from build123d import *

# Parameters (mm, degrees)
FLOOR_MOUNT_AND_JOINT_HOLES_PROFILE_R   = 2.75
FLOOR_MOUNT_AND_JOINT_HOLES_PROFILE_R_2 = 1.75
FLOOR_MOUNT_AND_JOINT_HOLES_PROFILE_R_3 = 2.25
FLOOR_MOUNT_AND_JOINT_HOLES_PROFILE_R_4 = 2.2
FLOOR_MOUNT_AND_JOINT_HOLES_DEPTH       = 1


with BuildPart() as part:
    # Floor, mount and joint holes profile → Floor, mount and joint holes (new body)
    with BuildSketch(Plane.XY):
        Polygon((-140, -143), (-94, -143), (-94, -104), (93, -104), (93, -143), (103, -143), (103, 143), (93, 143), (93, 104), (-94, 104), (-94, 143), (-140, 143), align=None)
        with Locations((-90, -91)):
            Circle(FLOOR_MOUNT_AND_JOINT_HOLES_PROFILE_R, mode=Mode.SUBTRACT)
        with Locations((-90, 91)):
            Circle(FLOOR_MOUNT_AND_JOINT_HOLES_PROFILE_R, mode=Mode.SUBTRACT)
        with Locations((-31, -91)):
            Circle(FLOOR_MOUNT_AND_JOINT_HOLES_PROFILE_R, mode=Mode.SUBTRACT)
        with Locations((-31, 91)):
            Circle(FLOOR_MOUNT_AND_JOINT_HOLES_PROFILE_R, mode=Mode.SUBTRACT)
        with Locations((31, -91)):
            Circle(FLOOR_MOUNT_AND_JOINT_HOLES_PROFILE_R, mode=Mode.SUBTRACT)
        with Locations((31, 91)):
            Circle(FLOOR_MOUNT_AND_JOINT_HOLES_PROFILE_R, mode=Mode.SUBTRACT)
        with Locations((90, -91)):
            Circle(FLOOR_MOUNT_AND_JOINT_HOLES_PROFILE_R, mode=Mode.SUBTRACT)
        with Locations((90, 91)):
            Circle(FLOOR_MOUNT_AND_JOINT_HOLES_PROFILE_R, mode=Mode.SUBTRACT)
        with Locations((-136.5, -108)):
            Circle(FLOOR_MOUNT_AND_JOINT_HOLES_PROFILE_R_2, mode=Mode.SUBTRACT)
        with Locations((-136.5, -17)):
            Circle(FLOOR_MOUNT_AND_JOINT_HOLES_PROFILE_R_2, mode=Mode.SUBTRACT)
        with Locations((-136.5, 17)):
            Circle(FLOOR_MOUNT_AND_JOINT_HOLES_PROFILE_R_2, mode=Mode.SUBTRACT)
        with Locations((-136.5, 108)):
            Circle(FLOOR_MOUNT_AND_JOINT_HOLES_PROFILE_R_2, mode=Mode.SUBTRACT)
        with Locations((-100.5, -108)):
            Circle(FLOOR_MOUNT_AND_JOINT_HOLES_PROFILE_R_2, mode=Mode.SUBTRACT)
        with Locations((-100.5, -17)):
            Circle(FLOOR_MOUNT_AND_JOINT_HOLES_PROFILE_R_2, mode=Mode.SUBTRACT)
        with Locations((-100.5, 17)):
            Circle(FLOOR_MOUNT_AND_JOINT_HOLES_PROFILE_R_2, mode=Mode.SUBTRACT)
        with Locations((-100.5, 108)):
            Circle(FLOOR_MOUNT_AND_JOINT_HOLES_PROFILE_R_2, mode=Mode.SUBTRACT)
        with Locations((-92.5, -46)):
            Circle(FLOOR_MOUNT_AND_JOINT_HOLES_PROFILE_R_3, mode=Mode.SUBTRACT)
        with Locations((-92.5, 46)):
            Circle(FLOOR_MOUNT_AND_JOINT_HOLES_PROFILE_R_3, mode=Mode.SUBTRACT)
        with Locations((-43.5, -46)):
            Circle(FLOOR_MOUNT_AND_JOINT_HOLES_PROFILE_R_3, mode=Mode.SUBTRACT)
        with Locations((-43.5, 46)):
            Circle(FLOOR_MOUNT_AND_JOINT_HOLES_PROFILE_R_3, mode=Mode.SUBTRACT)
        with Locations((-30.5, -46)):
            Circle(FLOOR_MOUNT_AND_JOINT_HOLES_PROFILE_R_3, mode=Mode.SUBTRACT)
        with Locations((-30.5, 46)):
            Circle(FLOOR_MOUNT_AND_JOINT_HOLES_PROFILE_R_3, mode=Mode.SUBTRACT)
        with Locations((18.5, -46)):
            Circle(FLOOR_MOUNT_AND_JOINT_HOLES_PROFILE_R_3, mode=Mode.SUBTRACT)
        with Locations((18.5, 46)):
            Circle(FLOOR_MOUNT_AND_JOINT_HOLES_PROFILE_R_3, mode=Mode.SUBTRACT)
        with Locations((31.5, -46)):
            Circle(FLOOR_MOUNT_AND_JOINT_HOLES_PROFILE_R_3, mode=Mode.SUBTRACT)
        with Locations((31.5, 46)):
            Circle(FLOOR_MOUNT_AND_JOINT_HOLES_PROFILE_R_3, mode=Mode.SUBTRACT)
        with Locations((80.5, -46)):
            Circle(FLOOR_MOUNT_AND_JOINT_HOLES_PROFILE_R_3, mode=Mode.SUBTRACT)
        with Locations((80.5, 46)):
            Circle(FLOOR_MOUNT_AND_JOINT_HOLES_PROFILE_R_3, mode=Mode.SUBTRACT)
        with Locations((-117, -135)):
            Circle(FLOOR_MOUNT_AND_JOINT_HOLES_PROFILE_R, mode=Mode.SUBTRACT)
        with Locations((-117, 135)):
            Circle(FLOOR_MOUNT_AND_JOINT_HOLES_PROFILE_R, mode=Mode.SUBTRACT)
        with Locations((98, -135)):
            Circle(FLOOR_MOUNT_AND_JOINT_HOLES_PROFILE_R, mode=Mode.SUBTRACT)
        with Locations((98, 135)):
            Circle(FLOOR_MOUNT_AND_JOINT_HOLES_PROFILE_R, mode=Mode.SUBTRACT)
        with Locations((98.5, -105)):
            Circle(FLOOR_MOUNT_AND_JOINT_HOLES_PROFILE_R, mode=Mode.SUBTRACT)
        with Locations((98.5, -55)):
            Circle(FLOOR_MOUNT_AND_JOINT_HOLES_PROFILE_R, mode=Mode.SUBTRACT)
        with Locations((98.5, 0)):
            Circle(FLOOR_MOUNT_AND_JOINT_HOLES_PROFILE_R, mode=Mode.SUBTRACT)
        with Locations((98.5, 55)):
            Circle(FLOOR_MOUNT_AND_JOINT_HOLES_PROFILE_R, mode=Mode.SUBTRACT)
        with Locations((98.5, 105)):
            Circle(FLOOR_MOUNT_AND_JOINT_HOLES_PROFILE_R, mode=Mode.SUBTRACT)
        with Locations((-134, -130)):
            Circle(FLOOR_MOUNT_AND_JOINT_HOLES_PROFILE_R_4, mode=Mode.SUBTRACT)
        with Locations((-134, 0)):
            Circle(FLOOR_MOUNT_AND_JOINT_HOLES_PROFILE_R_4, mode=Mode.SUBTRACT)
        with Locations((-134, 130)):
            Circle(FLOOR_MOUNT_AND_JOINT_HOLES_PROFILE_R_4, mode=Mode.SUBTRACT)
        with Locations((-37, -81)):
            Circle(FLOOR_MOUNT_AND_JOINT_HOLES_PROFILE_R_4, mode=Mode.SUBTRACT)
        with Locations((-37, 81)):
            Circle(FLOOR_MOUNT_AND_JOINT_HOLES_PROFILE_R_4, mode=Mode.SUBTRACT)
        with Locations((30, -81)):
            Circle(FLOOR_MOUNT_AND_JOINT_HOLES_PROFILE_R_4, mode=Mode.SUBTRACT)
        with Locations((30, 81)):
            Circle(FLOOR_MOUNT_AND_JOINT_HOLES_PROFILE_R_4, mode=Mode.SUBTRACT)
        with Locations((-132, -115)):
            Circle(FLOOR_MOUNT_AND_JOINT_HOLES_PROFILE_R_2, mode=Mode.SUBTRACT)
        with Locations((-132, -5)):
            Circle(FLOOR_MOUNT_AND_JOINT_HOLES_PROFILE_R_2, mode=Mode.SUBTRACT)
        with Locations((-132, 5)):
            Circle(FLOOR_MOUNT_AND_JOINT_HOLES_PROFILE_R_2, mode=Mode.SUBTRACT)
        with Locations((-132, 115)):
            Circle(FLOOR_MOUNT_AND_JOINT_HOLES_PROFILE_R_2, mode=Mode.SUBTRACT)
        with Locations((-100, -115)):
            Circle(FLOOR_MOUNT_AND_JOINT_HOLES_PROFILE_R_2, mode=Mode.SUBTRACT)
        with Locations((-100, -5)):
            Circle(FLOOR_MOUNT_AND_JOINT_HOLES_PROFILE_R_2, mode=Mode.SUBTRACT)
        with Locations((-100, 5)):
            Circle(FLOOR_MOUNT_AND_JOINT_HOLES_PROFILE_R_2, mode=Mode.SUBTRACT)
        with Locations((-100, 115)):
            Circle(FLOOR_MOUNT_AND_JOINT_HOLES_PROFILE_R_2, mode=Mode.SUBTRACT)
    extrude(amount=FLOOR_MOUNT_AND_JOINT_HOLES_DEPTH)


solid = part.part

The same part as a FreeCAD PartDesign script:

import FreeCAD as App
import Part
import Sketcher
from FreeCAD import Vector
Q = App.Units.Quantity

doc = App.newDocument("Part")
body = doc.addObject("PartDesign::Body", "Body")

sketch1 = body.newObject("Sketcher::SketchObject", "Sketch")
sketch1.AttachmentSupport = (doc.getObject("XY_Plane"), [""])
sketch1.MapMode = "FlatFace"
sketch1.addGeometry(Part.LineSegment(Vector(-140, -143, 0), Vector(-94, -143, 0)), False)
sketch1.addGeometry(Part.LineSegment(Vector(-94, -143, 0), Vector(-94, -104, 0)), False)
sketch1.addGeometry(Part.LineSegment(Vector(-94, -104, 0), Vector(93, -104, 0)), False)
sketch1.addGeometry(Part.LineSegment(Vector(93, -104, 0), Vector(93, -143, 0)), False)
sketch1.addGeometry(Part.LineSegment(Vector(93, -143, 0), Vector(103, -143, 0)), False)
sketch1.addGeometry(Part.LineSegment(Vector(103, -143, 0), Vector(103, 143, 0)), False)
sketch1.addGeometry(Part.LineSegment(Vector(103, 143, 0), Vector(93, 143, 0)), False)
sketch1.addGeometry(Part.LineSegment(Vector(93, 143, 0), Vector(93, 104, 0)), False)
sketch1.addGeometry(Part.LineSegment(Vector(93, 104, 0), Vector(-94, 104, 0)), False)
sketch1.addGeometry(Part.LineSegment(Vector(-94, 104, 0), Vector(-94, 143, 0)), False)
sketch1.addGeometry(Part.LineSegment(Vector(-94, 143, 0), Vector(-140, 143, 0)), False)
sketch1.addGeometry(Part.LineSegment(Vector(-140, 143, 0), Vector(-140, -143, 0)), False)
sketch1.addGeometry(Part.Circle(Vector(-134, -130, 0), Vector(0, 0, 1), 2.2), False)
sketch1.addGeometry(Part.Circle(Vector(-117, -135, 0), Vector(0, 0, 1), 2.75), False)
sketch1.addGeometry(Part.Circle(Vector(-132, -115, 0), Vector(0, 0, 1), 1.75), False)
sketch1.addGeometry(Part.Circle(Vector(-136.5, -108, 0), Vector(0, 0, 1), 1.75), False)
sketch1.addGeometry(Part.Circle(Vector(-100, -115, 0), Vector(0, 0, 1), 1.75), False)
sketch1.addGeometry(Part.Circle(Vector(-100.5, -108, 0), Vector(0, 0, 1), 1.75), False)
sketch1.addGeometry(Part.Circle(Vector(-90, -91, 0), Vector(0, 0, 1), 2.75), False)
sketch1.addGeometry(Part.Circle(Vector(-31, -91, 0), Vector(0, 0, 1), 2.75), False)
sketch1.addGeometry(Part.Circle(Vector(-37, -81, 0), Vector(0, 0, 1), 2.2), False)
sketch1.addGeometry(Part.Circle(Vector(-92.5, -46, 0), Vector(0, 0, 1), 2.25), False)
sketch1.addGeometry(Part.Circle(Vector(-136.5, -17, 0), Vector(0, 0, 1), 1.75), False)
sketch1.addGeometry(Part.Circle(Vector(-132, -5, 0), Vector(0, 0, 1), 1.75), False)
sketch1.addGeometry(Part.Circle(Vector(-100.5, -17, 0), Vector(0, 0, 1), 1.75), False)
sketch1.addGeometry(Part.Circle(Vector(-100, -5, 0), Vector(0, 0, 1), 1.75), False)
sketch1.addGeometry(Part.Circle(Vector(-43.5, -46, 0), Vector(0, 0, 1), 2.25), False)
sketch1.addGeometry(Part.Circle(Vector(-30.5, -46, 0), Vector(0, 0, 1), 2.25), False)
sketch1.addGeometry(Part.Circle(Vector(31, -91, 0), Vector(0, 0, 1), 2.75), False)
sketch1.addGeometry(Part.Circle(Vector(30, -81, 0), Vector(0, 0, 1), 2.2), False)
sketch1.addGeometry(Part.Circle(Vector(98, -135, 0), Vector(0, 0, 1), 2.75), False)
sketch1.addGeometry(Part.Circle(Vector(98.5, -105, 0), Vector(0, 0, 1), 2.75), False)
sketch1.addGeometry(Part.Circle(Vector(90, -91, 0), Vector(0, 0, 1), 2.75), False)
sketch1.addGeometry(Part.Circle(Vector(18.5, -46, 0), Vector(0, 0, 1), 2.25), False)
sketch1.addGeometry(Part.Circle(Vector(31.5, -46, 0), Vector(0, 0, 1), 2.25), False)
sketch1.addGeometry(Part.Circle(Vector(98.5, -55, 0), Vector(0, 0, 1), 2.75), False)
sketch1.addGeometry(Part.Circle(Vector(80.5, -46, 0), Vector(0, 0, 1), 2.25), False)
sketch1.addGeometry(Part.Circle(Vector(-134, 0, 0), Vector(0, 0, 1), 2.2), False)
sketch1.addGeometry(Part.Circle(Vector(-132, 5, 0), Vector(0, 0, 1), 1.75), False)
sketch1.addGeometry(Part.Circle(Vector(-136.5, 17, 0), Vector(0, 0, 1), 1.75), False)
sketch1.addGeometry(Part.Circle(Vector(-100, 5, 0), Vector(0, 0, 1), 1.75), False)
sketch1.addGeometry(Part.Circle(Vector(-100.5, 17, 0), Vector(0, 0, 1), 1.75), False)
sketch1.addGeometry(Part.Circle(Vector(-92.5, 46, 0), Vector(0, 0, 1), 2.25), False)
sketch1.addGeometry(Part.Circle(Vector(-43.5, 46, 0), Vector(0, 0, 1), 2.25), False)
sketch1.addGeometry(Part.Circle(Vector(-30.5, 46, 0), Vector(0, 0, 1), 2.25), False)
sketch1.addGeometry(Part.Circle(Vector(-90, 91, 0), Vector(0, 0, 1), 2.75), False)
sketch1.addGeometry(Part.Circle(Vector(-136.5, 108, 0), Vector(0, 0, 1), 1.75), False)
sketch1.addGeometry(Part.Circle(Vector(-132, 115, 0), Vector(0, 0, 1), 1.75), False)
sketch1.addGeometry(Part.Circle(Vector(-134, 130, 0), Vector(0, 0, 1), 2.2), False)
sketch1.addGeometry(Part.Circle(Vector(-117, 135, 0), Vector(0, 0, 1), 2.75), False)
sketch1.addGeometry(Part.Circle(Vector(-100.5, 108, 0), Vector(0, 0, 1), 1.75), False)
sketch1.addGeometry(Part.Circle(Vector(-100, 115, 0), Vector(0, 0, 1), 1.75), False)
sketch1.addGeometry(Part.Circle(Vector(-37, 81, 0), Vector(0, 0, 1), 2.2), False)
sketch1.addGeometry(Part.Circle(Vector(-31, 91, 0), Vector(0, 0, 1), 2.75), False)
sketch1.addGeometry(Part.Circle(Vector(18.5, 46, 0), Vector(0, 0, 1), 2.25), False)
sketch1.addGeometry(Part.Circle(Vector(31.5, 46, 0), Vector(0, 0, 1), 2.25), False)
sketch1.addGeometry(Part.Circle(Vector(98.5, 0, 0), Vector(0, 0, 1), 2.75), False)
sketch1.addGeometry(Part.Circle(Vector(80.5, 46, 0), Vector(0, 0, 1), 2.25), False)
sketch1.addGeometry(Part.Circle(Vector(98.5, 55, 0), Vector(0, 0, 1), 2.75), False)
sketch1.addGeometry(Part.Circle(Vector(30, 81, 0), Vector(0, 0, 1), 2.2), False)
sketch1.addGeometry(Part.Circle(Vector(31, 91, 0), Vector(0, 0, 1), 2.75), False)
sketch1.addGeometry(Part.Circle(Vector(90, 91, 0), Vector(0, 0, 1), 2.75), False)
sketch1.addGeometry(Part.Circle(Vector(98.5, 105, 0), Vector(0, 0, 1), 2.75), False)
sketch1.addGeometry(Part.Circle(Vector(98, 135, 0), Vector(0, 0, 1), 2.75), False)
sketch1.addConstraint(Sketcher.Constraint("Coincident", 0, 2, 1, 1))
sketch1.addConstraint(Sketcher.Constraint("Coincident", 1, 2, 2, 1))
sketch1.addConstraint(Sketcher.Constraint("Coincident", 2, 2, 3, 1))
sketch1.addConstraint(Sketcher.Constraint("Coincident", 3, 2, 4, 1))
sketch1.addConstraint(Sketcher.Constraint("Coincident", 4, 2, 5, 1))
sketch1.addConstraint(Sketcher.Constraint("Coincident", 5, 2, 6, 1))
sketch1.addConstraint(Sketcher.Constraint("Coincident", 6, 2, 7, 1))
sketch1.addConstraint(Sketcher.Constraint("Coincident", 7, 2, 8, 1))
sketch1.addConstraint(Sketcher.Constraint("Coincident", 8, 2, 9, 1))
sketch1.addConstraint(Sketcher.Constraint("Coincident", 9, 2, 10, 1))
sketch1.addConstraint(Sketcher.Constraint("Coincident", 10, 2, 11, 1))
sketch1.addConstraint(Sketcher.Constraint("Coincident", 11, 2, 0, 1))
sketch1.addConstraint(Sketcher.Constraint("Horizontal", 0))
sketch1.addConstraint(Sketcher.Constraint("Vertical", 1))
sketch1.addConstraint(Sketcher.Constraint("Horizontal", 2))
sketch1.addConstraint(Sketcher.Constraint("Vertical", 3))
sketch1.addConstraint(Sketcher.Constraint("Horizontal", 4))
sketch1.addConstraint(Sketcher.Constraint("Vertical", 5))
sketch1.addConstraint(Sketcher.Constraint("Horizontal", 6))
sketch1.addConstraint(Sketcher.Constraint("Vertical", 7))
sketch1.addConstraint(Sketcher.Constraint("Horizontal", 8))
sketch1.addConstraint(Sketcher.Constraint("Vertical", 9))
sketch1.addConstraint(Sketcher.Constraint("Horizontal", 10))
sketch1.addConstraint(Sketcher.Constraint("Vertical", 11))
sketch1.addConstraint(Sketcher.Constraint("Equal", 14, 15))
sketch1.addConstraint(Sketcher.Constraint("Equal", 15, 16))
sketch1.addConstraint(Sketcher.Constraint("Equal", 16, 17))
sketch1.addConstraint(Sketcher.Constraint("Equal", 13, 18))
sketch1.addConstraint(Sketcher.Constraint("Equal", 18, 19))
sketch1.addConstraint(Sketcher.Constraint("Equal", 12, 20))
sketch1.addConstraint(Sketcher.Constraint("Equal", 17, 22))
sketch1.addConstraint(Sketcher.Constraint("Equal", 22, 23))
sketch1.addConstraint(Sketcher.Constraint("Equal", 23, 24))
sketch1.addConstraint(Sketcher.Constraint("Equal", 24, 25))
sketch1.addConstraint(Sketcher.Constraint("Equal", 21, 26))
sketch1.addConstraint(Sketcher.Constraint("Equal", 26, 27))
sketch1.addConstraint(Sketcher.Constraint("Equal", 19, 28))
sketch1.addConstraint(Sketcher.Constraint("Equal", 20, 29))
sketch1.addConstraint(Sketcher.Constraint("Equal", 28, 30))
sketch1.addConstraint(Sketcher.Constraint("Equal", 30, 31))
sketch1.addConstraint(Sketcher.Constraint("Equal", 31, 32))
sketch1.addConstraint(Sketcher.Constraint("Equal", 27, 33))
sketch1.addConstraint(Sketcher.Constraint("Equal", 33, 34))
sketch1.addConstraint(Sketcher.Constraint("Equal", 32, 35))
sketch1.addConstraint(Sketcher.Constraint("Equal", 34, 36))
sketch1.addConstraint(Sketcher.Constraint("Equal", 29, 37))
sketch1.addConstraint(Sketcher.Constraint("Equal", 25, 38))
sketch1.addConstraint(Sketcher.Constraint("Equal", 38, 39))
sketch1.addConstraint(Sketcher.Constraint("Equal", 39, 40))
sketch1.addConstraint(Sketcher.Constraint("Equal", 40, 41))
sketch1.addConstraint(Sketcher.Constraint("Equal", 36, 42))
sketch1.addConstraint(Sketcher.Constraint("Equal", 42, 43))
sketch1.addConstraint(Sketcher.Constraint("Equal", 43, 44))
sketch1.addConstraint(Sketcher.Constraint("Equal", 35, 45))
sketch1.addConstraint(Sketcher.Constraint("Equal", 41, 46))
sketch1.addConstraint(Sketcher.Constraint("Equal", 46, 47))
sketch1.addConstraint(Sketcher.Constraint("Equal", 37, 48))
sketch1.addConstraint(Sketcher.Constraint("Equal", 45, 49))
sketch1.addConstraint(Sketcher.Constraint("Equal", 47, 50))
sketch1.addConstraint(Sketcher.Constraint("Equal", 50, 51))
sketch1.addConstraint(Sketcher.Constraint("Equal", 48, 52))
sketch1.addConstraint(Sketcher.Constraint("Equal", 49, 53))
sketch1.addConstraint(Sketcher.Constraint("Equal", 44, 54))
sketch1.addConstraint(Sketcher.Constraint("Equal", 54, 55))
sketch1.addConstraint(Sketcher.Constraint("Equal", 53, 56))
sketch1.addConstraint(Sketcher.Constraint("Equal", 55, 57))
sketch1.addConstraint(Sketcher.Constraint("Equal", 56, 58))
sketch1.addConstraint(Sketcher.Constraint("Equal", 52, 59))
sketch1.addConstraint(Sketcher.Constraint("Equal", 58, 60))
sketch1.addConstraint(Sketcher.Constraint("Equal", 60, 61))
sketch1.addConstraint(Sketcher.Constraint("Equal", 61, 62))
sketch1.addConstraint(Sketcher.Constraint("Equal", 62, 63))
sketch1.addConstraint(Sketcher.Constraint("Symmetric", 32, 3, 45, 3, -1, 1))
sketch1.addConstraint(Sketcher.Constraint("Symmetric", 28, 3, 53, 3, -1, 1))
sketch1.addConstraint(Sketcher.Constraint("Symmetric", 19, 3, 60, 3, -1, 1))
sketch1.addConstraint(Sketcher.Constraint("Symmetric", 18, 3, 61, 3, -1, 1))
sketch1.addConstraint(Sketcher.Constraint("Symmetric", 19, 3, 28, 3, -2))
sketch1.addConstraint(Sketcher.Constraint("Symmetric", 18, 3, 32, 3, -2))
sketch1.addConstraint(Sketcher.Constraint("Symmetric", 23, 3, 38, 3, -1))
sketch1.addConstraint(Sketcher.Constraint("Symmetric", 22, 3, 39, 3, -1))
sketch1.addConstraint(Sketcher.Constraint("Symmetric", 25, 3, 40, 3, -1))
sketch1.addConstraint(Sketcher.Constraint("Symmetric", 24, 3, 41, 3, -1))
sketch1.addConstraint(Sketcher.Constraint("Symmetric", 21, 3, 42, 3, -1))
sketch1.addConstraint(Sketcher.Constraint("Symmetric", 26, 3, 43, 3, -1))
sketch1.addConstraint(Sketcher.Constraint("Symmetric", 27, 3, 44, 3, -1))
sketch1.addConstraint(Sketcher.Constraint("Symmetric", 15, 3, 46, 3, -1))
sketch1.addConstraint(Sketcher.Constraint("Symmetric", 14, 3, 47, 3, -1))
sketch1.addConstraint(Sketcher.Constraint("Symmetric", 12, 3, 48, 3, -1))
sketch1.addConstraint(Sketcher.Constraint("Symmetric", 13, 3, 49, 3, -1))
sketch1.addConstraint(Sketcher.Constraint("Symmetric", 17, 3, 50, 3, -1))
sketch1.addConstraint(Sketcher.Constraint("Symmetric", 16, 3, 51, 3, -1))
sketch1.addConstraint(Sketcher.Constraint("Symmetric", 20, 3, 52, 3, -1))
sketch1.addConstraint(Sketcher.Constraint("Symmetric", 33, 3, 54, 3, -1))
sketch1.addConstraint(Sketcher.Constraint("Symmetric", 34, 3, 55, 3, -1))
sketch1.addConstraint(Sketcher.Constraint("Symmetric", 36, 3, 57, 3, -1))
sketch1.addConstraint(Sketcher.Constraint("Symmetric", 35, 3, 58, 3, -1))
sketch1.addConstraint(Sketcher.Constraint("Symmetric", 29, 3, 59, 3, -1))
sketch1.addConstraint(Sketcher.Constraint("Symmetric", 31, 3, 62, 3, -1))
sketch1.addConstraint(Sketcher.Constraint("Symmetric", 30, 3, 63, 3, -1))
sketch1.addConstraint(Sketcher.Constraint("Symmetric", 3, 2, 6, 2, -1))
sketch1.addConstraint(Sketcher.Constraint("Symmetric", 1, 2, 8, 2, -1))
sketch1.addConstraint(Sketcher.Constraint("PointOnObject", 37, 3, -1))
sketch1.addConstraint(Sketcher.Constraint("PointOnObject", 56, 3, -1))
sketch1.addConstraint(Sketcher.Constraint("Horizontal", 14, 3, 16, 3))
sketch1.addConstraint(Sketcher.Constraint("Horizontal", 15, 3, 17, 3))
sketch1.addConstraint(Sketcher.Constraint("Horizontal", 18, 3, 19, 3))
sketch1.addConstraint(Sketcher.Constraint("Horizontal", 22, 3, 24, 3))
sketch1.addConstraint(Sketcher.Constraint("Horizontal", 23, 3, 25, 3))
sketch1.addConstraint(Sketcher.Constraint("Horizontal", 21, 3, 26, 3))
sketch1.addConstraint(Sketcher.Constraint("Horizontal", 26, 3, 27, 3))
sketch1.addConstraint(Sketcher.Constraint("Horizontal", 20, 3, 29, 3))
sketch1.addConstraint(Sketcher.Constraint("Horizontal", 13, 3, 30, 3))
sketch1.addConstraint(Sketcher.Constraint("Horizontal", 27, 3, 33, 3))
sketch1.addConstraint(Sketcher.Constraint("Horizontal", 33, 3, 34, 3))
sketch1.addConstraint(Sketcher.Constraint("Horizontal", 34, 3, 36, 3))
sketch1.addConstraint(Sketcher.Constraint("Horizontal", 0, 2, 3, 2))
sketch1.addConstraint(Sketcher.Constraint("Horizontal", 6, 2, 9, 2))
sketch1.addConstraint(Sketcher.Constraint("Vertical", 15, 3, 22, 3))
sketch1.addConstraint(Sketcher.Constraint("Vertical", 14, 3, 23, 3))
sketch1.addConstraint(Sketcher.Constraint("Vertical", 17, 3, 24, 3))
sketch1.addConstraint(Sketcher.Constraint("Vertical", 16, 3, 25, 3))
sketch1.addConstraint(Sketcher.Constraint("Vertical", 31, 3, 35, 3))
sketch1.addConstraint(Sketcher.Constraint("Vertical", 12, 3, 37, 3))
sketch1.addConstraint(Sketcher.Constraint("Vertical", 35, 3, 56, 3))
sketch1.addConstraint(Sketcher.Constraint("Diameter", 12, Q("4.4 mm")))
sketch1.addConstraint(Sketcher.Constraint("Diameter", 13, Q("5.5 mm")))
sketch1.addConstraint(Sketcher.Constraint("Diameter", 14, Q("3.5 mm")))
sketch1.addConstraint(Sketcher.Constraint("Diameter", 21, Q("4.5 mm")))
sketch1.addConstraint(Sketcher.Constraint("DistanceX", 0, 1, 0, 2, Q("46 mm")))
sketch1.addConstraint(Sketcher.Constraint("DistanceX", 2, 1, 2, 2, Q("187 mm")))
sketch1.addConstraint(Sketcher.Constraint("DistanceX", 4, 1, 4, 2, Q("10 mm")))
sketch1.addConstraint(Sketcher.Constraint("DistanceY", 1, 1, 1, 2, Q("39 mm")))
sketch1.addConstraint(Sketcher.Constraint("DistanceY", 5, 1, 5, 2, Q("286 mm")))
sketch1.addConstraint(Sketcher.Constraint("DistanceX", 12, 3, -1, 1, Q("134 mm")))
sketch1.addConstraint(Sketcher.Constraint("DistanceY", 12, 3, -1, 1, Q("130 mm")))
sketch1.addConstraint(Sketcher.Constraint("DistanceX", 13, 3, -1, 1, Q("117 mm")))
sketch1.addConstraint(Sketcher.Constraint("DistanceY", 13, 3, -1, 1, Q("135 mm")))
sketch1.addConstraint(Sketcher.Constraint("DistanceX", 14, 3, -1, 1, Q("132 mm")))
sketch1.addConstraint(Sketcher.Constraint("DistanceY", 14, 3, -1, 1, Q("115 mm")))
sketch1.addConstraint(Sketcher.Constraint("DistanceY", 15, 3, -1, 1, Q("108 mm")))
sketch1.addConstraint(Sketcher.Constraint("DistanceX", 16, 3, -1, 1, Q("100 mm")))
sketch1.addConstraint(Sketcher.Constraint("DistanceX", 18, 3, -1, 1, Q("90 mm")))
sketch1.addConstraint(Sketcher.Constraint("DistanceY", 18, 3, -1, 1, Q("91 mm")))
sketch1.addConstraint(Sketcher.Constraint("DistanceX", 19, 3, -1, 1, Q("31 mm")))
sketch1.addConstraint(Sketcher.Constraint("DistanceX", 20, 3, -1, 1, Q("37 mm")))
sketch1.addConstraint(Sketcher.Constraint("DistanceY", 20, 3, -1, 1, Q("81 mm")))
sketch1.addConstraint(Sketcher.Constraint("DistanceY", 21, 3, -1, 1, Q("46 mm")))
sketch1.addConstraint(Sketcher.Constraint("DistanceY", 22, 3, -1, 1, Q("17 mm")))
sketch1.addConstraint(Sketcher.Constraint("DistanceY", 23, 3, -1, 1, Q("5 mm")))
sketch1.addConstraint(Sketcher.Constraint("DistanceX", -1, 1, 29, 3, Q("30 mm")))
sketch1.addConstraint(Sketcher.Constraint("DistanceX", -1, 1, 30, 3, Q("98 mm")))
sketch1.addConstraint(Sketcher.Constraint("DistanceY", 31, 3, -1, 1, Q("105 mm")))
sketch1.addConstraint(Sketcher.Constraint("DistanceY", 35, 3, -1, 1, Q("55 mm")))
sketch1.addConstraint(Sketcher.Constraint("DistanceX", 0, 2, -1, 1, Q("94 mm")))
sketch1.addConstraint(Sketcher.Constraint("DistanceX", 15, 3, -1, 1, Q("136.5 mm")))
sketch1.addConstraint(Sketcher.Constraint("DistanceX", 17, 3, -1, 1, Q("100.5 mm")))
sketch1.addConstraint(Sketcher.Constraint("DistanceX", 21, 3, -1, 1, Q("92.5 mm")))
sketch1.addConstraint(Sketcher.Constraint("DistanceX", 26, 3, -1, 1, Q("43.5 mm")))
sketch1.addConstraint(Sketcher.Constraint("DistanceX", 27, 3, -1, 1, Q("30.5 mm")))
sketch1.addConstraint(Sketcher.Constraint("DistanceX", -1, 1, 31, 3, Q("98.5 mm")))
sketch1.addConstraint(Sketcher.Constraint("DistanceX", -1, 1, 33, 3, Q("18.5 mm")))
sketch1.addConstraint(Sketcher.Constraint("DistanceX", -1, 1, 34, 3, Q("31.5 mm")))
sketch1.addConstraint(Sketcher.Constraint("DistanceX", -1, 1, 36, 3, Q("80.5 mm")))
pad1 = body.newObject("PartDesign::Pad", "Pad")
pad1.Profile = sketch1
pad1.Length = 1

doc.recompute()
